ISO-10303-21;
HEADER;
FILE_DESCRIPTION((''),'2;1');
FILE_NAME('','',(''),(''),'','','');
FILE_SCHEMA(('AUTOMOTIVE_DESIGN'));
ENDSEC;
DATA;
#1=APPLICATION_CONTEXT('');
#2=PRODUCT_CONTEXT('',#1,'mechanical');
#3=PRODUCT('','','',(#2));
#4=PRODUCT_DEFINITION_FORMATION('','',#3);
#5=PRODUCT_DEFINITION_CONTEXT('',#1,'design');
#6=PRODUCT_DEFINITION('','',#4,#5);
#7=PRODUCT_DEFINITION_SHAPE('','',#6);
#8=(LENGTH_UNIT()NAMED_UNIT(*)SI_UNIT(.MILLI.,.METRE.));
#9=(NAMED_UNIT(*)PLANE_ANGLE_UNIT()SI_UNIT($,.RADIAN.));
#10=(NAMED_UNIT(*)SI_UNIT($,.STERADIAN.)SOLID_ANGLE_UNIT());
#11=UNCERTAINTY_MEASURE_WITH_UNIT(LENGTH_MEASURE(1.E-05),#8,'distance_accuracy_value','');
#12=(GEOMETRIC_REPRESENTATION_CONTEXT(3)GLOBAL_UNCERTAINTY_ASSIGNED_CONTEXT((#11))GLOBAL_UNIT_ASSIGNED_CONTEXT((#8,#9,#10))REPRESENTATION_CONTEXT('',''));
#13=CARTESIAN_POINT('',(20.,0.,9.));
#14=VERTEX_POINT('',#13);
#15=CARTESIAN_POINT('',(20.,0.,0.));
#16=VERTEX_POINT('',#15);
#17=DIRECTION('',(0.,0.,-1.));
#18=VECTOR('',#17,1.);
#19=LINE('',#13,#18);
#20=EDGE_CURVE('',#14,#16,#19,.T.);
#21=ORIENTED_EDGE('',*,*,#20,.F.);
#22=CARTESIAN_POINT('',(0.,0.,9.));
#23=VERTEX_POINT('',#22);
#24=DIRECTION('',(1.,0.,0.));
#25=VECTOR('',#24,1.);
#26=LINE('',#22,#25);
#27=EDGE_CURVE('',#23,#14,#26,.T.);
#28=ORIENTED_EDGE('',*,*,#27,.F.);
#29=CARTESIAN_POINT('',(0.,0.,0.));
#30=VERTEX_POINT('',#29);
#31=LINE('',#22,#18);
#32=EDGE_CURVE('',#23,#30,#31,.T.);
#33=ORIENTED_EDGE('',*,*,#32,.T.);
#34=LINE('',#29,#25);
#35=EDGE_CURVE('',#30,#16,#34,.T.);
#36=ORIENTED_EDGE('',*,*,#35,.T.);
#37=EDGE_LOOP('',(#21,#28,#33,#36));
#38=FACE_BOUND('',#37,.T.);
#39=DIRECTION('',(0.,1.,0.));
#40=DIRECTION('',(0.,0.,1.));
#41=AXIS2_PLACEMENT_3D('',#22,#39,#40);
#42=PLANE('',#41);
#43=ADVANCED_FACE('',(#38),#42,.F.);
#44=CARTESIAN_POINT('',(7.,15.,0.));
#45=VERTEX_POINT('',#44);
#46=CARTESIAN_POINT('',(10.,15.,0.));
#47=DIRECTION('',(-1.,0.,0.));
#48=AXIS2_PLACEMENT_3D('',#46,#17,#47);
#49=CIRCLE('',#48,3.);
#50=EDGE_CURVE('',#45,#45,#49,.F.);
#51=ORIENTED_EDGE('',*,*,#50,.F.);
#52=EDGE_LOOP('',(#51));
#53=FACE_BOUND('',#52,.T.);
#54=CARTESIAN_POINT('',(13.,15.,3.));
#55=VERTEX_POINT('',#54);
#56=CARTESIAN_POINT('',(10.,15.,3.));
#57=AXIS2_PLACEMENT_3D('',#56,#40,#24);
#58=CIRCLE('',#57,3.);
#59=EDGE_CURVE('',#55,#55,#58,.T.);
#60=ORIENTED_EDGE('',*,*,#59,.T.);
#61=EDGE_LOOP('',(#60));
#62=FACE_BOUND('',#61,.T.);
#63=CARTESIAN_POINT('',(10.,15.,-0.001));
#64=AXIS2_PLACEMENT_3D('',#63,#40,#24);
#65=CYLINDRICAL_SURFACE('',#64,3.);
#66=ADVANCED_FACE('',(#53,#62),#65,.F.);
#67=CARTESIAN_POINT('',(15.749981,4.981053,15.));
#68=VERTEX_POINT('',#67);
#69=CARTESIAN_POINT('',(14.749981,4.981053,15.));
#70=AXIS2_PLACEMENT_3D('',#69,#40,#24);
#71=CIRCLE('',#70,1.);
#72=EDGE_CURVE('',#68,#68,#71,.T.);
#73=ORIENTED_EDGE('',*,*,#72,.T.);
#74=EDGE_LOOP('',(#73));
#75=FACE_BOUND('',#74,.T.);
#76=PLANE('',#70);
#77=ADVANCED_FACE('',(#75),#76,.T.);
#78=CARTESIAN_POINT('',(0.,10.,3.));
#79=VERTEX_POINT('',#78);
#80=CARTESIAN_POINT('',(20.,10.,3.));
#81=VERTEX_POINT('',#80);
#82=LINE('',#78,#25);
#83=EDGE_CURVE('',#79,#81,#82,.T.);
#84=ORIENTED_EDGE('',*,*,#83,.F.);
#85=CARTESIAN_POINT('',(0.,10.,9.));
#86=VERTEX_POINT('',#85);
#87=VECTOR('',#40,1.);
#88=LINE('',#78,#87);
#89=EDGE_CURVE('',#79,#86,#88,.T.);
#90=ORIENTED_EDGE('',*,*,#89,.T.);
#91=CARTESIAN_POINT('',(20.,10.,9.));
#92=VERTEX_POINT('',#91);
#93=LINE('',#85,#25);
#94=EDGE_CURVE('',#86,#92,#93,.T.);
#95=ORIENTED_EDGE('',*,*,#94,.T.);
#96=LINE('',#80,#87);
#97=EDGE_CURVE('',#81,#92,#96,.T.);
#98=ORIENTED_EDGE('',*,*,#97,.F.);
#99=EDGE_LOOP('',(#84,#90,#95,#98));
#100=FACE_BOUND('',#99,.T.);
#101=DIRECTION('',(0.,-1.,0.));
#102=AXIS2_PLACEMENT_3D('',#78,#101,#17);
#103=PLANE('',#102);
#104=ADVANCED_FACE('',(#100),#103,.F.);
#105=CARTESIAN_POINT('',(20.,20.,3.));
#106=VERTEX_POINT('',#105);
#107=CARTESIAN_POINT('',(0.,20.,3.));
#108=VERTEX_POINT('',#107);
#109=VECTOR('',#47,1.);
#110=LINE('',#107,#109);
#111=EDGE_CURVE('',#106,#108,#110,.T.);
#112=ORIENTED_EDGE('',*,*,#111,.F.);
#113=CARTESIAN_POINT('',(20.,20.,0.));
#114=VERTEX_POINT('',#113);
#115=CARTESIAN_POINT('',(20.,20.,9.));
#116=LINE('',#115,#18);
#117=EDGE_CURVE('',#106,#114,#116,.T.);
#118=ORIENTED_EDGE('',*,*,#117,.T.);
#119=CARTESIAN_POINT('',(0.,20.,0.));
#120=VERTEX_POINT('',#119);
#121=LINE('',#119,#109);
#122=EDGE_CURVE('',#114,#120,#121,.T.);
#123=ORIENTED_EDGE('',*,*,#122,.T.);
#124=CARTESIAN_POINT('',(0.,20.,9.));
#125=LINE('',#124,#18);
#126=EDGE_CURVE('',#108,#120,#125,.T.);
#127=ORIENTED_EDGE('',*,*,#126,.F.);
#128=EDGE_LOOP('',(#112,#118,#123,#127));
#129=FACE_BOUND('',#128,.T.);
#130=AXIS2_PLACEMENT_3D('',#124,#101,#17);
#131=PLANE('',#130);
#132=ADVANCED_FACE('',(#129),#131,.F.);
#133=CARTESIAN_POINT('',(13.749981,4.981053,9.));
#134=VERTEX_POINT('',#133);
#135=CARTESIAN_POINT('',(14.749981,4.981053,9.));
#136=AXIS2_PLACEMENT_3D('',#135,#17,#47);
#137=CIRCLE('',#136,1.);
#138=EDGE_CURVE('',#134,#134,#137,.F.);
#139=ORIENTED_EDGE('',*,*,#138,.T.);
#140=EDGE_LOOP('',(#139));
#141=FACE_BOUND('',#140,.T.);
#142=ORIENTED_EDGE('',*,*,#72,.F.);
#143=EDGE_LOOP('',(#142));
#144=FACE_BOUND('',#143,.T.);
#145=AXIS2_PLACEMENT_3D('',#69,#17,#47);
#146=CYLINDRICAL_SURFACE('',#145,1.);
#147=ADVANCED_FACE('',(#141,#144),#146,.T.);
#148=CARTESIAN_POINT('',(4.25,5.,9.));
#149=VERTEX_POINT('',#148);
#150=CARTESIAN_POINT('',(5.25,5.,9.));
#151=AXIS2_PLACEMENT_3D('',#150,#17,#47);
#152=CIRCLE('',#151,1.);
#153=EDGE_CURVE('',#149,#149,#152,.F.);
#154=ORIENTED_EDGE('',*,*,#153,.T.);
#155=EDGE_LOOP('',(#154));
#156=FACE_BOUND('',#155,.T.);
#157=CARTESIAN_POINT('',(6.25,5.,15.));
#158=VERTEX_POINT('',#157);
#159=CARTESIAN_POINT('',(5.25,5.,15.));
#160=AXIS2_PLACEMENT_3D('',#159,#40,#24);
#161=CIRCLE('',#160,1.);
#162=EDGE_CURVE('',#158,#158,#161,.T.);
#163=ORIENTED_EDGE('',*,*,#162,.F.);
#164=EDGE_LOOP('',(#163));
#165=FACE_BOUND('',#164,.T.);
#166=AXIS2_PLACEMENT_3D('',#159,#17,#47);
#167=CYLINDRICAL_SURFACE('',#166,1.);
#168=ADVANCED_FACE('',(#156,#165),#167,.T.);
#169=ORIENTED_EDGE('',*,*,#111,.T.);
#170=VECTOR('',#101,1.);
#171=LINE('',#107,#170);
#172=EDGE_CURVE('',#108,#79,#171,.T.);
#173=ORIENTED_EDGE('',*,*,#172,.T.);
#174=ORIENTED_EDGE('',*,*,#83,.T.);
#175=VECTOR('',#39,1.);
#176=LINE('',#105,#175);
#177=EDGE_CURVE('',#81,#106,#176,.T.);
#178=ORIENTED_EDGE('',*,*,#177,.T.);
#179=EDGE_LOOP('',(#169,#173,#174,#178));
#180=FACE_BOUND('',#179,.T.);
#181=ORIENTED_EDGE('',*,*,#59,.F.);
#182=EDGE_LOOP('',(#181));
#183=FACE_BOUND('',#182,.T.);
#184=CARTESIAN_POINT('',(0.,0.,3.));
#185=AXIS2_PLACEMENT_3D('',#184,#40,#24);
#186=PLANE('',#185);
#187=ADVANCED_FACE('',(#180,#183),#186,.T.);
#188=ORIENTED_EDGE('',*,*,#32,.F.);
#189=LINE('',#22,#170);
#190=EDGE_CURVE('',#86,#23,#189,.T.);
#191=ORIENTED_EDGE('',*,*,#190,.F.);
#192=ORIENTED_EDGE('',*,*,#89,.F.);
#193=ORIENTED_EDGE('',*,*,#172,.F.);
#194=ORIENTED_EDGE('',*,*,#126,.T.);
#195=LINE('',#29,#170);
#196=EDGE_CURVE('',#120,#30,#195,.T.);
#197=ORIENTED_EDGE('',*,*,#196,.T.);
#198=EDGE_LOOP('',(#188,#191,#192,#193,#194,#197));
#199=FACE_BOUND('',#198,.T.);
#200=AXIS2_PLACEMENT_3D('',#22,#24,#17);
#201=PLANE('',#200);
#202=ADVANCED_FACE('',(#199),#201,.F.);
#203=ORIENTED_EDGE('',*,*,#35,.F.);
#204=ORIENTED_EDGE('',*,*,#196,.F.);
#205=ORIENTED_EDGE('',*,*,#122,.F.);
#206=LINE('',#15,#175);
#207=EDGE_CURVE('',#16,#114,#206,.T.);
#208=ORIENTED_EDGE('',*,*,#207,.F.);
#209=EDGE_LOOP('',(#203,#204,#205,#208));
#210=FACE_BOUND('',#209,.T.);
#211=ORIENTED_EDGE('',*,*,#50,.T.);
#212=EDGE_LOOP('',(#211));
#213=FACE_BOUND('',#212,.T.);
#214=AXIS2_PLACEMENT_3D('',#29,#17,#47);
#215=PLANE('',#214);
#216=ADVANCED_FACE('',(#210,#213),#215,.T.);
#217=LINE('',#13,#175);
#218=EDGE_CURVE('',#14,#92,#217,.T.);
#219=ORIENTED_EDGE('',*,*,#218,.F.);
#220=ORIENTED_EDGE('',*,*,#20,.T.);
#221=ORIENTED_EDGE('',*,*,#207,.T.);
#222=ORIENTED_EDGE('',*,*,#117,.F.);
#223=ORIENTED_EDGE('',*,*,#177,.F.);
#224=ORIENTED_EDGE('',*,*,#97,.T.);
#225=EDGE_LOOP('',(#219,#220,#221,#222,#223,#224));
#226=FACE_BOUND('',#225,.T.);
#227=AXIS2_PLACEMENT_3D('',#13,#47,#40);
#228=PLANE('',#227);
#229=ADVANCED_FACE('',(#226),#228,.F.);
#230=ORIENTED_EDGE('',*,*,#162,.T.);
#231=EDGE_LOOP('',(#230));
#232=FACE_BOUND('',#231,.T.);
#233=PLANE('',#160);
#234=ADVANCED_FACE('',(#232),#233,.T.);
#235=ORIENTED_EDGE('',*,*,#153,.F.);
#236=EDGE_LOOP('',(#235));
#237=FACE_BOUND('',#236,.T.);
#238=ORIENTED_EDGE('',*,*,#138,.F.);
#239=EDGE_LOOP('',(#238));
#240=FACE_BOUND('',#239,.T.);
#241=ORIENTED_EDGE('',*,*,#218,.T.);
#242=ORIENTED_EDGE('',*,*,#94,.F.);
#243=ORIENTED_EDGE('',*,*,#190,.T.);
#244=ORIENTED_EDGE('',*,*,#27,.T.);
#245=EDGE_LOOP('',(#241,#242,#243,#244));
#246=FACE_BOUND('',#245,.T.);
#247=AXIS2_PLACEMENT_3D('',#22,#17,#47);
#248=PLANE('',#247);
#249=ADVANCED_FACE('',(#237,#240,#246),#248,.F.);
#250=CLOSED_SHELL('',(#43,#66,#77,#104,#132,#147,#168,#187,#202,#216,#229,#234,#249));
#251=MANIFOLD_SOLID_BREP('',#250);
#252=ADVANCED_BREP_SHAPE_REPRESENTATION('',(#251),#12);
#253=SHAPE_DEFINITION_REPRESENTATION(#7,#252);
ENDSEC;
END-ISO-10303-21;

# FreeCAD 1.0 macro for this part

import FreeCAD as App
import Part
import Sketcher
from FreeCAD import Vector

doc = App.newDocument("Part")
body = doc.addObject("PartDesign::Body", "Body")

# Sketch on XY plane
sketch1 = body.newObject("Sketcher::SketchObject", "Sketch")
sketch1.AttachmentSupport = (doc.getObject("XY_Plane"), [""])
sketch1.MapMode = "FlatFace"
sketch1.addGeometry([
    Part.LineSegment(Vector(0, 20, 0), Vector(0, 0, 0)),
    Part.LineSegment(Vector(0, 0, 0), Vector(20, 0, 0)),
    Part.LineSegment(Vector(20, 0, 0), Vector(20, 20, 0)),
    Part.LineSegment(Vector(20, 20, 0), Vector(0, 20, 0)),
], False)
sketch1.addConstraint([
    Sketcher.Constraint("Coincident", 0, 2, 1, 1),
    Sketcher.Constraint("Coincident", 1, 2, 2, 1),
    Sketcher.Constraint("Coincident", 2, 2, 3, 1),
    Sketcher.Constraint("Coincident", 3, 2, 0, 1),
    Sketcher.Constraint("Vertical", 0),
    Sketcher.Constraint("Horizontal", 1),
    Sketcher.Constraint("Vertical", 2),
    Sketcher.Constraint("Horizontal", 3),
    Sketcher.Constraint("Coincident", 0, 2, -1, 1),
    Sketcher.Constraint("Equal", 3, 0),
    Sketcher.Constraint("DistanceX", 1, 1, 1, 2, 20.0),
])
pad1 = body.newObject("PartDesign::Pad", "Pad")
pad1.Profile = sketch1
pad1.Length = 9

# Sketch on XY plane
sketch2 = body.newObject("Sketcher::SketchObject", "Sketch001")
sketch2.AttachmentSupport = (doc.getObject("XY_Plane"), [""])
sketch2.MapMode = "FlatFace"
sketch2.AttachmentOffset = App.Placement(Vector(0, 0, 9), App.Rotation())
sketch2.addGeometry([
    Part.Circle(Vector(5.2, 5, 0), Vector(0, 0, 1), 1),
    Part.Circle(Vector(14.7, 5, 0), Vector(0, 0, 1), 1),
], False)
sketch2.addConstraint([
    Sketcher.Constraint("Equal", 0, 1),
    Sketcher.Constraint("Diameter", 0, 2.0),
    Sketcher.Constraint("DistanceY", -1, 1, 0, 3, 5.0),
    Sketcher.Constraint("DistanceX", -1, 1, 0, 3, 5.25),
    Sketcher.Constraint("DistanceX", -1, 1, 1, 3, 14.749981),
    Sketcher.Constraint("DistanceY", -1, 1, 1, 3, 4.981053),
])
pad2 = body.newObject("PartDesign::Pad", "Pad001")
pad2.Profile = sketch2
pad2.Length = 6

# Sketch on XY plane
sketch3 = body.newObject("Sketcher::SketchObject", "Sketch002")
sketch3.AttachmentSupport = (doc.getObject("XY_Plane"), [""])
sketch3.MapMode = "FlatFace"
sketch3.AttachmentOffset = App.Placement(Vector(0, 0, 9), App.Rotation())
sketch3.addGeometry([
    Part.LineSegment(Vector(0, 20, 0), Vector(0, 10, 0)),
    Part.LineSegment(Vector(0, 10, 0), Vector(20, 10, 0)),
    Part.LineSegment(Vector(20, 10, 0), Vector(20, 20, 0)),
    Part.LineSegment(Vector(20, 20, 0), Vector(0, 20, 0)),
], False)
sketch3.addConstraint([
    Sketcher.Constraint("Coincident", 0, 2, 1, 1),
    Sketcher.Constraint("Coincident", 1, 2, 2, 1),
    Sketcher.Constraint("Coincident", 2, 2, 3, 1),
    Sketcher.Constraint("Coincident", 3, 2, 0, 1),
    Sketcher.Constraint("Vertical", 0),
    Sketcher.Constraint("Horizontal", 1),
    Sketcher.Constraint("Vertical", 2),
    Sketcher.Constraint("Horizontal", 3),
    Sketcher.Constraint("PointOnObject", 0, 2, -2),
    Sketcher.Constraint("DistanceX", 1, 1, 1, 2, 20.0),
    Sketcher.Constraint("DistanceY", 0, 2, 0, 1, 10.0),
    Sketcher.Constraint("DistanceY", -1, 1, 0, 2, 10.0),
])
pocket1 = body.newObject("PartDesign::Pocket", "Pocket")
pocket1.Profile = sketch3
pocket1.Length = 6

# Sketch on XY plane
sketch4 = body.newObject("Sketcher::SketchObject", "Sketch003")
sketch4.AttachmentSupport = (doc.getObject("XY_Plane"), [""])
sketch4.MapMode = "FlatFace"
sketch4.AttachmentOffset = App.Placement(Vector(0, 0, 3), App.Rotation())
sketch4.addGeometry(Part.Circle(Vector(10, 15, 0), Vector(0, 0, 1), 3), False)
sketch4.addConstraint([
    Sketcher.Constraint("Diameter", 0, 6.0),
    Sketcher.Constraint("DistanceX", -1, 1, 0, 3, 10.0),
    Sketcher.Constraint("DistanceY", -1, 1, 0, 3, 15.0),
])
pocket2 = body.newObject("PartDesign::Pocket", "Pocket001")
pocket2.Profile = sketch4
pocket2.Type = "UpToFirst"

doc.recompute()
